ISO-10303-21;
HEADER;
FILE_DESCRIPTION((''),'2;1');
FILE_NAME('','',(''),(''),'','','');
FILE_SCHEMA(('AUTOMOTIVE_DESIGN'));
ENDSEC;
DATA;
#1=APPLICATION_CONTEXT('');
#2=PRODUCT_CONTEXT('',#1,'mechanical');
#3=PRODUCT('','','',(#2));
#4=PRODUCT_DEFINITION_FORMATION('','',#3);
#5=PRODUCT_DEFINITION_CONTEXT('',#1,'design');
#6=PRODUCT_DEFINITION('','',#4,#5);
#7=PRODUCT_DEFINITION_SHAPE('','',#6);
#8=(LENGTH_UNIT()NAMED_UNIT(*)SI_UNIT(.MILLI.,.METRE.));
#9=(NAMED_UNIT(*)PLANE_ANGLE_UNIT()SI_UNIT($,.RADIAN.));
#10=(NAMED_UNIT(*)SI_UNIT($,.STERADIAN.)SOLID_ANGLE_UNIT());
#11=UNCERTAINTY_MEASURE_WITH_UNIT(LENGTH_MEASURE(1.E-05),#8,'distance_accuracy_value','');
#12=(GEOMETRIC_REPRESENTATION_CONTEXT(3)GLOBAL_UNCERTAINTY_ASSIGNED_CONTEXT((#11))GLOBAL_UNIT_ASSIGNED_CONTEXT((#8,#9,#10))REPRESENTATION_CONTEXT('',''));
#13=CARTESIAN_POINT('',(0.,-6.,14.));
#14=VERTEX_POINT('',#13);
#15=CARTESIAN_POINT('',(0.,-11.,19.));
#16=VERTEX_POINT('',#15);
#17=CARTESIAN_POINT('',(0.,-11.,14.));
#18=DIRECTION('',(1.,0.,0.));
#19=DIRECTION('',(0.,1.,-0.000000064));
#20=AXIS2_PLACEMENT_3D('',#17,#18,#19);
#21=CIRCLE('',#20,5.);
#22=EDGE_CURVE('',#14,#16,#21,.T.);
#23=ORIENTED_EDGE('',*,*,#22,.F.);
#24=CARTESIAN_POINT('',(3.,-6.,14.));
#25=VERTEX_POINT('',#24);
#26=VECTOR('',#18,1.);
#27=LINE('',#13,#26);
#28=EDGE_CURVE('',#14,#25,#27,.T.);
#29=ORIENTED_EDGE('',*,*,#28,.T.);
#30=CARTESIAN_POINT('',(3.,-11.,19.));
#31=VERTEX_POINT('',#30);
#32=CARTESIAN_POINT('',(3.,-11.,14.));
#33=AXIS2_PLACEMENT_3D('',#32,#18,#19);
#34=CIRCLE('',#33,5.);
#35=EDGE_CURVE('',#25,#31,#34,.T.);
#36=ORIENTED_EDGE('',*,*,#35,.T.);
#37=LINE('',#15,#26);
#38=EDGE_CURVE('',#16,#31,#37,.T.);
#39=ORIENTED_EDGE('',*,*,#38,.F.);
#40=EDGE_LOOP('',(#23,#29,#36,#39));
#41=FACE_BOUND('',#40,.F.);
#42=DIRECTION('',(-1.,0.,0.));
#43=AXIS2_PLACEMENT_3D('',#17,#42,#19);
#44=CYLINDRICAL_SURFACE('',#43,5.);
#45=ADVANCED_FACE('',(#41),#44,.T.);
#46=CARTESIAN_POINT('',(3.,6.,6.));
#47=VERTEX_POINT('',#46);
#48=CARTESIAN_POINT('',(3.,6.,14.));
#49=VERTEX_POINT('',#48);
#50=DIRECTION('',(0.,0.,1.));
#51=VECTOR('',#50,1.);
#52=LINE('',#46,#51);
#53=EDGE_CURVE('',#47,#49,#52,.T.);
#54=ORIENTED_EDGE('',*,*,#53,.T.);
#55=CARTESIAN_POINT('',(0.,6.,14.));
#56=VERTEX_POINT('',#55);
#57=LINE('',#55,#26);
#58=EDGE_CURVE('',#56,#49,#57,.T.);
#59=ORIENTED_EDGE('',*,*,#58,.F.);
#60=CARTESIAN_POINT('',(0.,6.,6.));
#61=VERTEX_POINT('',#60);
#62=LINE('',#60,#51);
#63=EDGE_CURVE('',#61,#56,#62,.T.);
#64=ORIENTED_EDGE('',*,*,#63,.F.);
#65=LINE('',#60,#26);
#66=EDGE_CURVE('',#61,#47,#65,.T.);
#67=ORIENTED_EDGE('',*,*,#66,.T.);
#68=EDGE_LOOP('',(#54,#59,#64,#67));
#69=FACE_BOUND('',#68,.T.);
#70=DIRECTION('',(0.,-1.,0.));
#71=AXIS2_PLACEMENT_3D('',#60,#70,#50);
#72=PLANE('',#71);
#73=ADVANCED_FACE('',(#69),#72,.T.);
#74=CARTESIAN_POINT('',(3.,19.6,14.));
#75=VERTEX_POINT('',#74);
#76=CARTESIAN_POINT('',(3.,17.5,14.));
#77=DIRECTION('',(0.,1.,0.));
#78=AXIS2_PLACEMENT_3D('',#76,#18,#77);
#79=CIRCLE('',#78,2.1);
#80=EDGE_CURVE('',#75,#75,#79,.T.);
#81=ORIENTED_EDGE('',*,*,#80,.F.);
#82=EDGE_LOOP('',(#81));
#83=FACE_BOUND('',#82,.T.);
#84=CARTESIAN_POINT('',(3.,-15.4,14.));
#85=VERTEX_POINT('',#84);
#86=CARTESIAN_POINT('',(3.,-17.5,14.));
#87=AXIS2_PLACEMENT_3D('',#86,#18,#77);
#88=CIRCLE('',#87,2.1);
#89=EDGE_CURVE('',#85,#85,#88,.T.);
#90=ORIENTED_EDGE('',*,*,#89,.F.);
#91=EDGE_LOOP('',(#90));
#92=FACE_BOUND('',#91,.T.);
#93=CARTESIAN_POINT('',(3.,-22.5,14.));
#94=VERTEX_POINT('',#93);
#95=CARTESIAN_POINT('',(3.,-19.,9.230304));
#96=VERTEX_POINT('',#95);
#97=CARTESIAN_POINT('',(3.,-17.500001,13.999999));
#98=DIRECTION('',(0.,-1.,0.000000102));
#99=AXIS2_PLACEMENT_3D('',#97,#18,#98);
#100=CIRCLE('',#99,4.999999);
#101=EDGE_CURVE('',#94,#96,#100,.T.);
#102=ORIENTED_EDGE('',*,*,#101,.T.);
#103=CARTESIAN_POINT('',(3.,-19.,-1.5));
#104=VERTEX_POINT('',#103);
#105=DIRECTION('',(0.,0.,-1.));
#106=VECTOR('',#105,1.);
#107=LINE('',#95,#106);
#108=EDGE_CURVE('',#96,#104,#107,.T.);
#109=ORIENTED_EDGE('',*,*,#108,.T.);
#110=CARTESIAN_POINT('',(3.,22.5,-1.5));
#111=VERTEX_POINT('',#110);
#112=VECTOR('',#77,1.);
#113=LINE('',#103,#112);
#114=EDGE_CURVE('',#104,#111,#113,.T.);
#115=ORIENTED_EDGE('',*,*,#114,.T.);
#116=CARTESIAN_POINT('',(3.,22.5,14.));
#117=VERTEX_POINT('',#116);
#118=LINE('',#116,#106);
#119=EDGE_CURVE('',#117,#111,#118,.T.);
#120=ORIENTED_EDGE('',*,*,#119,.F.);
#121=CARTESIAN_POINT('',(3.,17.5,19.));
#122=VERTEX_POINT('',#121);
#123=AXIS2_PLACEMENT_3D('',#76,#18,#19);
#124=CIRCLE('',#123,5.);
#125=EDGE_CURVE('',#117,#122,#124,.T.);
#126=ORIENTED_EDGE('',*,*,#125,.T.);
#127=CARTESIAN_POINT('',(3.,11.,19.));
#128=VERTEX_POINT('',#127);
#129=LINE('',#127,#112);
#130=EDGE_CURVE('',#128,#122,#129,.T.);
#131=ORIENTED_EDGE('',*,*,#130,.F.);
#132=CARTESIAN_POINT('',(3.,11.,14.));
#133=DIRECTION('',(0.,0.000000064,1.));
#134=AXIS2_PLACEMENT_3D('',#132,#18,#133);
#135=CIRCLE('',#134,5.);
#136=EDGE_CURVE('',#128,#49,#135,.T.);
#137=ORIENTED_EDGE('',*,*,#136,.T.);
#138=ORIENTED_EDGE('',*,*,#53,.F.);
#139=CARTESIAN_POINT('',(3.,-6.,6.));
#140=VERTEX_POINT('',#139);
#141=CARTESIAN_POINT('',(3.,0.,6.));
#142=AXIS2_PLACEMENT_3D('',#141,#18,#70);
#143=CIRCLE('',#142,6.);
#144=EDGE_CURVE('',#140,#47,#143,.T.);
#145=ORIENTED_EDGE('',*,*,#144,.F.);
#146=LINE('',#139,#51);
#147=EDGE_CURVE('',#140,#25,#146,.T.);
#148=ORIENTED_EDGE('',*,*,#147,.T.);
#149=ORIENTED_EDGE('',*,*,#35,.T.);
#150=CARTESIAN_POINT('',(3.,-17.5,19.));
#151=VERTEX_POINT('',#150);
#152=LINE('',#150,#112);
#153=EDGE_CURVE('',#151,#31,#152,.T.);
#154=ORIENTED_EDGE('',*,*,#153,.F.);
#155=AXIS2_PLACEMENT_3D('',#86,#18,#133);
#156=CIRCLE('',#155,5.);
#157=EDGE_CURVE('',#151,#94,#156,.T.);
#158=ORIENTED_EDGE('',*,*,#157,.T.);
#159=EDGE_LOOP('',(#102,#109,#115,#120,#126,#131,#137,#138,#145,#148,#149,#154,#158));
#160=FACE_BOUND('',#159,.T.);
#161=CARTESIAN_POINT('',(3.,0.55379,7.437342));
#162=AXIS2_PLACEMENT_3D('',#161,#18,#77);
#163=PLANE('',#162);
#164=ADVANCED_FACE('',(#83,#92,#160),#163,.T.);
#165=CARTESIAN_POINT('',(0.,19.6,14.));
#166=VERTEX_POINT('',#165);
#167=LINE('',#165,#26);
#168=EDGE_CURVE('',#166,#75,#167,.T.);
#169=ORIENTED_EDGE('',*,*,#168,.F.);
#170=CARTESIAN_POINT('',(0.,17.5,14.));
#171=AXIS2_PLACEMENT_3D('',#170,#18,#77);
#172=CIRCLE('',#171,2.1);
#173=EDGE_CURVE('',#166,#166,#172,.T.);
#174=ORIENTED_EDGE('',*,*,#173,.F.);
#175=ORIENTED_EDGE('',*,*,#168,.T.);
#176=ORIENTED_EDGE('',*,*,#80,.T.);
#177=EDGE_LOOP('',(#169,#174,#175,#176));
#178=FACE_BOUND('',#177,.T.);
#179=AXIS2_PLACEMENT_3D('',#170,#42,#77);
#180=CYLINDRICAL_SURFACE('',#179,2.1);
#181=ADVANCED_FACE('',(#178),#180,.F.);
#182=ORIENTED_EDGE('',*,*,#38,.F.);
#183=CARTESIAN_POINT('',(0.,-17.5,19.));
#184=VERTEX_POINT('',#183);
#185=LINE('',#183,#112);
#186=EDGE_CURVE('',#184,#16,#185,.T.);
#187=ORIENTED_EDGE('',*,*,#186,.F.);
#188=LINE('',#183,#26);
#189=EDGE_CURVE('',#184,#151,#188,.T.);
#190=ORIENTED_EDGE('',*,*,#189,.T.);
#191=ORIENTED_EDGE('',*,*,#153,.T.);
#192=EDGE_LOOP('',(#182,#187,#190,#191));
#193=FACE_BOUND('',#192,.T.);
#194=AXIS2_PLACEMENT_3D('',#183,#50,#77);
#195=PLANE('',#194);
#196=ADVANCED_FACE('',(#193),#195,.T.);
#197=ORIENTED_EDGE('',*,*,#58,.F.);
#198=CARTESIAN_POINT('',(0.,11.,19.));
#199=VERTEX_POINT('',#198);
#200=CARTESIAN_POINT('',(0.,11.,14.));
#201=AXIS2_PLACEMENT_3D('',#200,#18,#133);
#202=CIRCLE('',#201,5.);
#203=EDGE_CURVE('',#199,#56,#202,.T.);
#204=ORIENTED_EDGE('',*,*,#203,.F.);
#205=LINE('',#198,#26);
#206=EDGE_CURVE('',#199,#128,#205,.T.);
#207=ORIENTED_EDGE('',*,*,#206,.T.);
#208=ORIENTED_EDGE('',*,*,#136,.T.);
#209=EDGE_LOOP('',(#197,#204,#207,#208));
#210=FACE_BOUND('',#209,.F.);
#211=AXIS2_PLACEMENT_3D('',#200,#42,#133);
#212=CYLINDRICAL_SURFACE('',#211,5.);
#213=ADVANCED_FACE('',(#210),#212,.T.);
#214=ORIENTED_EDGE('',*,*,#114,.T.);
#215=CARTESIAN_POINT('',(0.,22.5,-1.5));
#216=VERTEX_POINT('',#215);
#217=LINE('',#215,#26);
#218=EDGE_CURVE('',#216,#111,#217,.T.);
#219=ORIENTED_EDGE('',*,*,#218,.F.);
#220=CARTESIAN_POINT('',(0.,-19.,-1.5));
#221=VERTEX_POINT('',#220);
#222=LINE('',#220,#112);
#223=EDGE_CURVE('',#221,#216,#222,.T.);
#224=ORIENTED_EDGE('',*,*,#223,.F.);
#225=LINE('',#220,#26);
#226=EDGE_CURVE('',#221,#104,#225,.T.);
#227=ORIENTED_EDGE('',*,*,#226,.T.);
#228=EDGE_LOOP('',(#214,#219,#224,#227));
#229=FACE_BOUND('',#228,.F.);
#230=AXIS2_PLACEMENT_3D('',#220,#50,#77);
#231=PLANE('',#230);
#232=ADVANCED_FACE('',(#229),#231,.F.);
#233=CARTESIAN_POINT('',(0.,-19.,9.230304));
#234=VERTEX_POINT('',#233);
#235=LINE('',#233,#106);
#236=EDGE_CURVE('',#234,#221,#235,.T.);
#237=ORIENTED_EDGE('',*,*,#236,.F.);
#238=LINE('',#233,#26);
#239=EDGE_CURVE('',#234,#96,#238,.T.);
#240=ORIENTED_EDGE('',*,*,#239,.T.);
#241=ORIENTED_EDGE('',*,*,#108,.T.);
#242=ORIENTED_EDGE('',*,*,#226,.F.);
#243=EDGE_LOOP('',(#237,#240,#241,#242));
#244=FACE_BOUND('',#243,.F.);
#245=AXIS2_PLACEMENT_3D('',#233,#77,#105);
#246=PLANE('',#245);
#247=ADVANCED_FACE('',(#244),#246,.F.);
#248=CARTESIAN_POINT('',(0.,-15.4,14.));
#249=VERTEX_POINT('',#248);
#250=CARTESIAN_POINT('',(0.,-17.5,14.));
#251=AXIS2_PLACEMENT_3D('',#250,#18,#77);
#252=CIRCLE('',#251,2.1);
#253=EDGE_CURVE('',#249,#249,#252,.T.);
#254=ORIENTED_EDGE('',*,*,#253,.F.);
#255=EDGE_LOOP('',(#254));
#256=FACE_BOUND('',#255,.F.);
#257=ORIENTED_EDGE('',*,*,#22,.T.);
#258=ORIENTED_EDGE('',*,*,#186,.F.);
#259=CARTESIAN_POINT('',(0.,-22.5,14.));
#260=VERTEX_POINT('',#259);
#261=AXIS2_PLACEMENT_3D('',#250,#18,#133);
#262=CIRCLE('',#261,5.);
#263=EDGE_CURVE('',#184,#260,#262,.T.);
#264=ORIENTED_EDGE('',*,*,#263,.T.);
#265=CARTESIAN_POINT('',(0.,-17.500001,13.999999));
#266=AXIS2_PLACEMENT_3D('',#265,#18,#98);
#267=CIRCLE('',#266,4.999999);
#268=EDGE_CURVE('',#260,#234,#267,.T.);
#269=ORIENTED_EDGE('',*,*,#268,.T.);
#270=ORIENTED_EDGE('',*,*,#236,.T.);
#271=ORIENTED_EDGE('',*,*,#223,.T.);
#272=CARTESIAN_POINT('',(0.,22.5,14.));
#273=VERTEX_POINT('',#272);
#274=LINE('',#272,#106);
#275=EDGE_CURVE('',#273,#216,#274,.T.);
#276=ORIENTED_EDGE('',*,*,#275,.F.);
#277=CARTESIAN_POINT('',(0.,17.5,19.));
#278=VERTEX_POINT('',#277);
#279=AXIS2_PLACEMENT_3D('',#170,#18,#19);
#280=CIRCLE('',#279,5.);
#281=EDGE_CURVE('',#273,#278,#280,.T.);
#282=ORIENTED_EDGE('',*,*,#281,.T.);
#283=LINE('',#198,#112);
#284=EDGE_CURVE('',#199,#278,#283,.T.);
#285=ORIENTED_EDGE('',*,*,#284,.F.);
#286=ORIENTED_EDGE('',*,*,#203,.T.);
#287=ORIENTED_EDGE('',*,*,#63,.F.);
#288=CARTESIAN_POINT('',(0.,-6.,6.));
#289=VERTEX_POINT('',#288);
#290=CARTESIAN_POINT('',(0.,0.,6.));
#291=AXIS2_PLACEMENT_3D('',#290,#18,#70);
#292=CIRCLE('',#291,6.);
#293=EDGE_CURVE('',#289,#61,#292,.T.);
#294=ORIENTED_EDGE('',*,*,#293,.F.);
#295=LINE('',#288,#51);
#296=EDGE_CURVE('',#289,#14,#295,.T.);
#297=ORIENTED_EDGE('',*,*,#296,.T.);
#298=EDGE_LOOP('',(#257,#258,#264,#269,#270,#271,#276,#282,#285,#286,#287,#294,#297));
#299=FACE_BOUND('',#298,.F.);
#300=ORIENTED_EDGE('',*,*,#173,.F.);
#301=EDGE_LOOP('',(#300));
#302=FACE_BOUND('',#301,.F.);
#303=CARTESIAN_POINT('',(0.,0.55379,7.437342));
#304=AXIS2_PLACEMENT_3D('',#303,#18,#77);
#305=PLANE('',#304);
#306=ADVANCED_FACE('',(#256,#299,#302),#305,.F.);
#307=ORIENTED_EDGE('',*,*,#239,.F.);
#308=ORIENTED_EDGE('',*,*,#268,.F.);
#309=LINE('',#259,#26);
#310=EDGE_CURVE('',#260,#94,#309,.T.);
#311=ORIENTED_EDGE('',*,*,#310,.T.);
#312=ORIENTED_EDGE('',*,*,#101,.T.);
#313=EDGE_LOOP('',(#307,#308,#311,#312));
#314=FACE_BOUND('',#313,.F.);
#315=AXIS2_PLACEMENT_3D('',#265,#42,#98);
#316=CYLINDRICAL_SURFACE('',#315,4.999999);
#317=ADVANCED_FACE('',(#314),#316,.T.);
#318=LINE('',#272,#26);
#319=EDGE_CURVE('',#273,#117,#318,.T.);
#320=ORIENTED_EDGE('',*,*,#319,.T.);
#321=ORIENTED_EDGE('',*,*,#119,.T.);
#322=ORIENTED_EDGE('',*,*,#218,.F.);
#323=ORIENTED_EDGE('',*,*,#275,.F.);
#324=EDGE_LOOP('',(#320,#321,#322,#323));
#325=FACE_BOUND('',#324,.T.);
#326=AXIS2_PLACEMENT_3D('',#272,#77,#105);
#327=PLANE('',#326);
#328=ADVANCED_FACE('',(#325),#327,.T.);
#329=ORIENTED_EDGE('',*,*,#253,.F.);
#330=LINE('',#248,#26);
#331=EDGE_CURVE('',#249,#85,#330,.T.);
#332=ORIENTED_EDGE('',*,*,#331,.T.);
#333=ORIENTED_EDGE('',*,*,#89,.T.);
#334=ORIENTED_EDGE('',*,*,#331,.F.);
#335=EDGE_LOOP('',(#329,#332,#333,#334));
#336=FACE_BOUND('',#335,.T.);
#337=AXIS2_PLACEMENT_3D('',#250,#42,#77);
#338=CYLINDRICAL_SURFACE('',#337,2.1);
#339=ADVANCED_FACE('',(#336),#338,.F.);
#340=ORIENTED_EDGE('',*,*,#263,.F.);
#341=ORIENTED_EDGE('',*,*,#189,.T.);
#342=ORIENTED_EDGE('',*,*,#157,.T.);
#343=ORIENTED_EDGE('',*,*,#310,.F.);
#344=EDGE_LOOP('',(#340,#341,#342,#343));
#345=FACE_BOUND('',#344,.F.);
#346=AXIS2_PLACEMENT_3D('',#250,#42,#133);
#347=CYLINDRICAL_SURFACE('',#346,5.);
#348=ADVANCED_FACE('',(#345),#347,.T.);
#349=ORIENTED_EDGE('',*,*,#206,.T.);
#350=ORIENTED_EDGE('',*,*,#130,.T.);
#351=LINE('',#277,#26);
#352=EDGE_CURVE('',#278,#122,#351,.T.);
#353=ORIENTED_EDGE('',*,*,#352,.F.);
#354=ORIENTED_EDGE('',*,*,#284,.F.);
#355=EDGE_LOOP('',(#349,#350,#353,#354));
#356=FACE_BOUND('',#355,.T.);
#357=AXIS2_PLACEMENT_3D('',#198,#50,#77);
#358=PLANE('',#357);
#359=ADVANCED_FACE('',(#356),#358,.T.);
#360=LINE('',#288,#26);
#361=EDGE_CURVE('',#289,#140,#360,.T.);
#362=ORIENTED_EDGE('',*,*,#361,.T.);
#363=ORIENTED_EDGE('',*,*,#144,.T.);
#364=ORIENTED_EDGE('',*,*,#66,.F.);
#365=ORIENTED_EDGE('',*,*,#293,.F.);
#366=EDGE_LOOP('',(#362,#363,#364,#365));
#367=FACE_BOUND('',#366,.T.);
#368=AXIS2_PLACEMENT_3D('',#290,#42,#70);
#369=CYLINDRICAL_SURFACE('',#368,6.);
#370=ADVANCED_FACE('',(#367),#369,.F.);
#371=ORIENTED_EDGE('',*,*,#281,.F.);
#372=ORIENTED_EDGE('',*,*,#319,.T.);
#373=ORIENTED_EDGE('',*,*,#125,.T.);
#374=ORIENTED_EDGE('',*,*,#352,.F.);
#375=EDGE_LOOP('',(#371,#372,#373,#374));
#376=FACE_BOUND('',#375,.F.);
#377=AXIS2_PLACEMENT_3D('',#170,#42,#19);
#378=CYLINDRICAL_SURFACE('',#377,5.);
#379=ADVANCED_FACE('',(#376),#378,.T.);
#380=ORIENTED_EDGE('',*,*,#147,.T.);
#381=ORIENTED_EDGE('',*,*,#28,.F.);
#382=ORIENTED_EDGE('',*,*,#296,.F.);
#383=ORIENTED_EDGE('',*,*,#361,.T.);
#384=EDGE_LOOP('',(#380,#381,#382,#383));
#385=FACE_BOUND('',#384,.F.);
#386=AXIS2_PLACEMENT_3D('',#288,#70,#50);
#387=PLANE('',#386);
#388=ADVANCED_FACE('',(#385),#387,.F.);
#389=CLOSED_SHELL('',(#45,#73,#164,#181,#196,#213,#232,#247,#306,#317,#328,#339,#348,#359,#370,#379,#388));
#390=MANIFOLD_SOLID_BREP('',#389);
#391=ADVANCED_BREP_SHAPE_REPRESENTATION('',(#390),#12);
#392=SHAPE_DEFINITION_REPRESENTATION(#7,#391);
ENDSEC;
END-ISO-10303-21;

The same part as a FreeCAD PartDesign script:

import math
import FreeCAD as App
import Part
import Sketcher
Q = App.Units.Quantity

doc = App.newDocument("Part")
body = doc.addObject("PartDesign::Body", "Body")

# Sketch on YZ plane
sketch1 = body.newObject("Sketcher::SketchObject", "Sketch")
sketch1.AttachmentSupport = (doc.getObject("YZ_Plane"), [""])
sketch1.MapMode = "FlatFace"
sketch1.addGeometry([
    Part.ArcOfCircle(Part.Circle(App.Vector(-17.5, 14, 0), App.Vector(0, 0, 1), 5), math.radians(89.999996), math.radians(180.000004)),  # 0
    Part.ArcOfCircle(Part.Circle(App.Vector(-17.500001, 13.999999, 0), App.Vector(0, 0, 1), 4.999999), math.radians(179.999994), math.radians(252.542403)),  # 1
    Part.LineSegment(App.Vector(-19, 9.230304, 0), App.Vector(-19, -1.5, 0)),  # 2
    Part.LineSegment(App.Vector(-19, -1.5, 0), App.Vector(22.5, -1.5, 0)),  # 3
    Part.LineSegment(App.Vector(22.5, -1.5, 0), App.Vector(22.5, 14, 0)),  # 4
    Part.ArcOfCircle(Part.Circle(App.Vector(17.5, 14, 0), App.Vector(0, 0, 1), 5), math.radians(-0.000004), math.radians(90.000004)),  # 5
    Part.LineSegment(App.Vector(17.5, 19, 0), App.Vector(11, 19, 0)),  # 6
    Part.ArcOfCircle(Part.Circle(App.Vector(11, 14, 0), App.Vector(0, 0, 1), 5), math.radians(89.999996), math.radians(180.000004)),  # 7
    Part.LineSegment(App.Vector(6, 14, 0), App.Vector(6, 6, 0)),  # 8
    Part.ArcOfCircle(Part.Circle(App.Vector(0, 6, 0), App.Vector(0, 0, 1), 6), math.radians(180), math.radians(360)),  # 9
    Part.LineSegment(App.Vector(-6, 6, 0), App.Vector(-6, 14, 0)),  # 10
    Part.ArcOfCircle(Part.Circle(App.Vector(-11, 14, 0), App.Vector(0, 0, 1), 5), math.radians(-0.000004), math.radians(90.000004)),  # 11
    Part.LineSegment(App.Vector(-11, 19, 0), App.Vector(-17.5, 19, 0)),  # 12
    Part.Circle(App.Vector(-17.5, 14, 0), App.Vector(0, 0, 1), 2.1),  # 13
    Part.Circle(App.Vector(17.5, 14, 0), App.Vector(0, 0, 1), 2.1),  # 14
], False)
sketch1.addConstraint([
    Sketcher.Constraint("Tangent", 0, 2, 1, 1),
    Sketcher.Constraint("Coincident", 1, 2, 2, 1),
    Sketcher.Constraint("Coincident", 2, 2, 3, 1),
    Sketcher.Constraint("Coincident", 3, 2, 4, 1),
    Sketcher.Constraint("Tangent", 4, 2, 5, 1),
    Sketcher.Constraint("Tangent", 5, 2, 6, 1),
    Sketcher.Constraint("Tangent", 6, 2, 7, 1),
    Sketcher.Constraint("Tangent", 7, 2, 8, 1),
    Sketcher.Constraint("Tangent", 8, 2, 9, 2),
    Sketcher.Constraint("Tangent", 9, 1, 10, 1),
    Sketcher.Constraint("Tangent", 10, 2, 11, 1),
    Sketcher.Constraint("Tangent", 11, 2, 12, 1),
    Sketcher.Constraint("Tangent", 12, 2, 0, 1),
    Sketcher.Constraint("Vertical", 2),
    Sketcher.Constraint("Horizontal", 3),
    Sketcher.Constraint("Vertical", 4),
    Sketcher.Constraint("Horizontal", 6),
    Sketcher.Constraint("Vertical", 8),
    Sketcher.Constraint("Vertical", 10),
    Sketcher.Constraint("Horizontal", 12),
    Sketcher.Constraint("Coincident", 13, 3, 0, 3),
    Sketcher.Constraint("Coincident", 14, 3, 5, 3),
    Sketcher.Constraint("Equal", 0, 1),
    Sketcher.Constraint("Equal", 1, 5),
    Sketcher.Constraint("Equal", 5, 7),
    Sketcher.Constraint("Equal", 7, 11),
    Sketcher.Constraint("Equal", 13, 14),
    Sketcher.Constraint("Symmetric", 0, 3, 5, 3, -2),
    Sketcher.Constraint("PointOnObject", 9, 3, -2),
    Sketcher.Constraint("Horizontal", 14, 3, 0, 2),
    Sketcher.Constraint("Radius", 0, Q("5 mm")),
    Sketcher.Constraint("Radius", 9, Q("6 mm")),
    Sketcher.Constraint("Diameter", 13, Q("4.2 mm")),
    Sketcher.Constraint("DistanceY", 8, 2, 8, 1, Q("8 mm")),
    Sketcher.Constraint("DistanceX", 3, 1, 3, 2, Q("41.5 mm")),
    Sketcher.Constraint("DistanceX", 6, 2, 6, 1, Q("6.5 mm")),
    Sketcher.Constraint("DistanceY", 4, 1, 4, 2, Q("15.5 mm")),
    Sketcher.Constraint("DistanceY", -1, 1, 0, 3, Q("14 mm")),
])
pad1 = body.newObject("PartDesign::Pad", "Pad")
pad1.Profile = sketch1
pad1.Length = 3

doc.recompute()
